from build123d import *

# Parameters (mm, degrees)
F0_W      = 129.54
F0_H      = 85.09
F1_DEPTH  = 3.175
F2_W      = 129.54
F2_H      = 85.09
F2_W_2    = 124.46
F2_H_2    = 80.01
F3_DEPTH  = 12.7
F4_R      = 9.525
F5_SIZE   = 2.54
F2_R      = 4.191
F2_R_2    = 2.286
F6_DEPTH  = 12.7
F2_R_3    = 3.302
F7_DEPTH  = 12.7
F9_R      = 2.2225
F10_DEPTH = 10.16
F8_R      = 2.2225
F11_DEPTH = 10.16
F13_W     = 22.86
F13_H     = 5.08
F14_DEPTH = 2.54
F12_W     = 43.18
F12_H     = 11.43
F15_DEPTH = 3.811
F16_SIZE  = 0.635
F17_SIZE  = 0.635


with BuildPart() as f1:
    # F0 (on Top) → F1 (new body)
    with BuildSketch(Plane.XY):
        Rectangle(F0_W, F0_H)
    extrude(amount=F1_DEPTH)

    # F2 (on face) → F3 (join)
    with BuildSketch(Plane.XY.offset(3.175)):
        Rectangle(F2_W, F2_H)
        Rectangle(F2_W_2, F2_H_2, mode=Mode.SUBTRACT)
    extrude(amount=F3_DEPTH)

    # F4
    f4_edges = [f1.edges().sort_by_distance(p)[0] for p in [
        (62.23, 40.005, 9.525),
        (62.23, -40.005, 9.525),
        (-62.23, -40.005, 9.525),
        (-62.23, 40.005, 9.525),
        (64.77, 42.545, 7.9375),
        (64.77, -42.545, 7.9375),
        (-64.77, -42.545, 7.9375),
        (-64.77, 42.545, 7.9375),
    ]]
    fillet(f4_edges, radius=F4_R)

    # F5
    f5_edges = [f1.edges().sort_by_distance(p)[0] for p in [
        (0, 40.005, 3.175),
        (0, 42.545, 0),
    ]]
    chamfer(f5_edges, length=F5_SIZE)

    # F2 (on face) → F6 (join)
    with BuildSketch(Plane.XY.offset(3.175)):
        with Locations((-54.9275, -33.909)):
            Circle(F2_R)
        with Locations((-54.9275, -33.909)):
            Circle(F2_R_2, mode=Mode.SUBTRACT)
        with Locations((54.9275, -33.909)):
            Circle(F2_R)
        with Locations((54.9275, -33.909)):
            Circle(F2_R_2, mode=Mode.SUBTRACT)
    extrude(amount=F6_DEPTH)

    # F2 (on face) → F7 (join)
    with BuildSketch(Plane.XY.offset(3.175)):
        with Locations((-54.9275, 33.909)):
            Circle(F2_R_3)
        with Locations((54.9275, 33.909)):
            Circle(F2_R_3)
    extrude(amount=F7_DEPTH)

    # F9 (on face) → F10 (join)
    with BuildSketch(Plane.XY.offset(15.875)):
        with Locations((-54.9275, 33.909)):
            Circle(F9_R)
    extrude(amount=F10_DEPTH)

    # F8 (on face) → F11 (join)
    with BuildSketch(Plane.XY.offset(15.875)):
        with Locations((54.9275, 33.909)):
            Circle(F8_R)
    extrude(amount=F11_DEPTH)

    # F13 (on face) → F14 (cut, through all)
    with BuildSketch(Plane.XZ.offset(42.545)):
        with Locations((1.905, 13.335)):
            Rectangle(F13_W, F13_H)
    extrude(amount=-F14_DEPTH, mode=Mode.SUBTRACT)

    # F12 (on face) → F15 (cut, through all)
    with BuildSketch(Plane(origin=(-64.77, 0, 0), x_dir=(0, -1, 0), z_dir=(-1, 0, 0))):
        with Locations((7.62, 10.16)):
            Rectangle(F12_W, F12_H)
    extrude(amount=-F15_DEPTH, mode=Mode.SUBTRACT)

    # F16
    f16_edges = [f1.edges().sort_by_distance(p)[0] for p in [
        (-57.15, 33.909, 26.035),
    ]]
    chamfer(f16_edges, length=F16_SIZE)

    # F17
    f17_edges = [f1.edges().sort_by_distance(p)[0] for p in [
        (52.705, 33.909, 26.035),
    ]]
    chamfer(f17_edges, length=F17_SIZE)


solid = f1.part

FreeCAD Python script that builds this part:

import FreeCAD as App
import Part
import Sketcher
Q = App.Units.Quantity


def edges_at(feature, points):
    """Names of the edges that pass closest to the given points."""
    edges = feature.Shape.Edges
    near = lambda p: min(range(len(edges)), key=lambda i: edges[i].distToShape(Part.Vertex(*p))[0])
    return sorted({f"Edge{near(p) + 1}" for p in points})


def add_polygon(sketch, points):
    """Adds a closed chain of lines whose ends are joined by coincident constraints."""
    first, n = sketch.GeometryCount, len(points)
    for a, b in zip(points, points[1:] + points[:1]):
        sketch.addGeometry(Part.LineSegment(App.Vector(*a, 0), App.Vector(*b, 0)), False)
    for i in range(n):
        sketch.addConstraint(Sketcher.Constraint("Coincident", first + i, 2, first + (i + 1) % n, 1))

doc = App.newDocument("Part")
body = doc.addObject("PartDesign::Body", "Body")

sketch1 = body.newObject("Sketcher::SketchObject", "Sketch")
sketch1.AttachmentSupport = (doc.getObject("XY_Plane"), [""])
sketch1.MapMode = "FlatFace"
add_polygon(sketch1, [(-64.77, 42.545), (-64.77, -42.545), (64.77, -42.545), (64.77, 42.545)])
sketch1.addConstraint([
    Sketcher.Constraint("Vertical", 0),
    Sketcher.Constraint("Horizontal", 1),
    Sketcher.Constraint("Vertical", 2),
    Sketcher.Constraint("Horizontal", 3),
    Sketcher.Constraint("Symmetric", 0, 2, 2, 2, -1, 1),
    Sketcher.Constraint("DistanceX", 1, 1, 1, 2, Q("5.1 in")),
    Sketcher.Constraint("DistanceY", 0, 2, 0, 1, Q("3.35 in")),
])
pad1 = body.newObject("PartDesign::Pad", "Pad")
pad1.Profile = sketch1
pad1.Length = Q("0.125 in")

sketch2 = body.newObject("Sketcher::SketchObject", "Sketch001")
sketch2.AttachmentSupport = (doc.getObject("XY_Plane"), [""])
sketch2.MapMode = "FlatFace"
sketch2.AttachmentOffset = App.Placement(App.Vector(0, 0, 0.125 * 25.4), App.Rotation())
add_polygon(sketch2, [(-64.77, 42.545), (-64.77, -42.545), (64.77, -42.545), (64.77, 42.545)])
add_polygon(sketch2, [(62.23, -40.005), (-62.23, -40.005), (-62.23, 40.005), (62.23, 40.005)])
sketch2.addConstraint([
    Sketcher.Constraint("Vertical", 0),
    Sketcher.Constraint("Horizontal", 1),
    Sketcher.Constraint("Vertical", 2),
    Sketcher.Constraint("Horizontal", 3),
    Sketcher.Constraint("Horizontal", 4),
    Sketcher.Constraint("Vertical", 5),
    Sketcher.Constraint("Horizontal", 6),
    Sketcher.Constraint("Vertical", 7),
    Sketcher.Constraint("Symmetric", 0, 2, 2, 2, -1, 1),
    Sketcher.Constraint("Symmetric", 4, 2, 6, 2, -1, 1),
    Sketcher.Constraint("DistanceX", 1, 1, 1, 2, Q("5.1 in")),
    Sketcher.Constraint("DistanceX", 4, 2, 4, 1, Q("4.9 in")),
    Sketcher.Constraint("DistanceY", 0, 2, 0, 1, Q("3.35 in")),
    Sketcher.Constraint("DistanceY", 5, 1, 5, 2, Q("3.15 in")),
])
pad2 = body.newObject("PartDesign::Pad", "Pad001")
pad2.Profile = sketch2
pad2.Length = Q("0.5 in")
doc.recompute()

fillet = body.newObject("PartDesign::Fillet", "Fillet")
fillet.Base = (pad2, edges_at(pad2, [
    (62.23, 40.005, 9.525),
    (62.23, -40.005, 9.525),
    (-62.23, -40.005, 9.525),
    (-62.23, 40.005, 9.525),
    (64.77, 42.545, 7.938),
    (64.77, -42.545, 7.938),
    (-64.77, -42.545, 7.938),
    (-64.77, 42.545, 7.938),
]))
fillet.Radius = Q("0.375 in")
doc.recompute()

chamfer = body.newObject("PartDesign::Chamfer", "Chamfer")
chamfer.Base = (fillet, edges_at(fillet, [(0, 40.005, 3.175), (0, 42.545, 0)]))
chamfer.Size = Q("0.1 in")

sketch3 = body.newObject("Sketcher::SketchObject", "Sketch002")
sketch3.AttachmentSupport = (doc.getObject("XY_Plane"), [""])
sketch3.MapMode = "FlatFace"
sketch3.AttachmentOffset = App.Placement(App.Vector(0, 0, 0.125 * 25.4), App.Rotation())
sketch3.addGeometry([
    Part.Circle(App.Vector(-54.9275, -33.909, 0), App.Vector(0, 0, 1), 4.191),
    Part.Circle(App.Vector(-54.9275, -33.909, 0), App.Vector(0, 0, 1), 2.286),
    Part.Circle(App.Vector(54.9275, -33.909, 0), App.Vector(0, 0, 1), 4.191),
    Part.Circle(App.Vector(54.9275, -33.909, 0), App.Vector(0, 0, 1), 2.286),
], False)
sketch3.addConstraint([
    Sketcher.Constraint("Coincident", 1, 3, 0, 3),
    Sketcher.Constraint("Coincident", 3, 3, 2, 3),
    Sketcher.Constraint("Equal", 0, 2),
    Sketcher.Constraint("Equal", 1, 3),
    Sketcher.Constraint("Symmetric", 0, 3, 2, 3, -2),
    Sketcher.Constraint("Diameter", 0, Q("0.33 in")),
    Sketcher.Constraint("Diameter", 1, Q("0.18 in")),
    Sketcher.Constraint("DistanceY", 0, 3, -1, 1, Q("1.335 in")),
    Sketcher.Constraint("DistanceX", 0, 3, 2, 3, Q("4.325 in")),
])
pad3 = body.newObject("PartDesign::Pad", "Pad002")
pad3.Profile = sketch3
pad3.Length = Q("0.5 in")

sketch4 = body.newObject("Sketcher::SketchObject", "Sketch003")
sketch4.AttachmentSupport = (doc.getObject("XY_Plane"), [""])
sketch4.MapMode = "FlatFace"
sketch4.AttachmentOffset = App.Placement(App.Vector(0, 0, 0.125 * 25.4), App.Rotation())
sketch4.addGeometry([
    Part.Circle(App.Vector(-54.9275, 33.909, 0), App.Vector(0, 0, 1), 3.302),
    Part.Circle(App.Vector(54.9275, 33.909, 0), App.Vector(0, 0, 1), 3.302),
], False)
sketch4.addConstraint([
    Sketcher.Constraint("Equal", 0, 1),
    Sketcher.Constraint("Symmetric", 0, 3, 1, 3, -2),
    Sketcher.Constraint("Diameter", 0, Q("0.26 in")),
    Sketcher.Constraint("DistanceY", -1, 1, 0, 3, Q("1.335 in")),
    Sketcher.Constraint("DistanceX", 0, 3, 1, 3, Q("4.325 in")),
])
pad4 = body.newObject("PartDesign::Pad", "Pad003")
pad4.Profile = sketch4
pad4.Length = Q("0.5 in")

sketch5 = body.newObject("Sketcher::SketchObject", "Sketch004")
sketch5.AttachmentSupport = (doc.getObject("XY_Plane"), [""])
sketch5.MapMode = "FlatFace"
sketch5.AttachmentOffset = App.Placement(App.Vector(0, 0, 0.625 * 25.4), App.Rotation())
sketch5.addGeometry(Part.Circle(App.Vector(-54.9275, 33.909, 0), App.Vector(0, 0, 1), 2.2225), False)
sketch5.addConstraint([
    Sketcher.Constraint("Diameter", 0, Q("0.175 in")),
    Sketcher.Constraint("DistanceY", -1, 1, 0, 3, Q("1.335 in")),
    Sketcher.Constraint("DistanceX", 0, 3, -1, 1, Q("2.1625 in")),
])
pad5 = body.newObject("PartDesign::Pad", "Pad004")
pad5.Profile = sketch5
pad5.Length = Q("0.4 in")

sketch6 = body.newObject("Sketcher::SketchObject", "Sketch005")
sketch6.AttachmentSupport = (doc.getObject("XY_Plane"), [""])
sketch6.MapMode = "FlatFace"
sketch6.AttachmentOffset = App.Placement(App.Vector(0, 0, 0.625 * 25.4), App.Rotation())
sketch6.addGeometry(Part.Circle(App.Vector(54.9275, 33.909, 0), App.Vector(0, 0, 1), 2.2225), False)
sketch6.addConstraint([
    Sketcher.Constraint("Diameter", 0, Q("0.175 in")),
    Sketcher.Constraint("DistanceY", -1, 1, 0, 3, Q("1.335 in")),
    Sketcher.Constraint("DistanceX", -1, 1, 0, 3, Q("2.1625 in")),
])
pad6 = body.newObject("PartDesign::Pad", "Pad005")
pad6.Profile = sketch6
pad6.Length = Q("0.4 in")

sketch7 = body.newObject("Sketcher::SketchObject", "Sketch006")
sketch7.AttachmentSupport = (doc.getObject("XZ_Plane"), [""])
sketch7.MapMode = "FlatFace"
sketch7.AttachmentOffset = App.Placement(App.Vector(0, 0, 1.675 * 25.4), App.Rotation())
add_polygon(sketch7, [(-9.525, 15.875), (-9.525, 10.795), (13.335, 10.795), (13.335, 15.875)])
sketch7.addConstraint([
    Sketcher.Constraint("Vertical", 0),
    Sketcher.Constraint("Horizontal", 1),
    Sketcher.Constraint("Vertical", 2),
    Sketcher.Constraint("Horizontal", 3),
    Sketcher.Constraint("DistanceX", 1, 1, 1, 2, Q("0.9 in")),
    Sketcher.Constraint("DistanceY", 0, 2, 0, 1, Q("0.2 in")),
    Sketcher.Constraint("DistanceX", 0, 2, -1, 1, Q("0.375 in")),
    Sketcher.Constraint("DistanceY", -1, 1, 0, 2, Q("0.425 in")),
])
pocket1 = body.newObject("PartDesign::Pocket", "Pocket")
pocket1.Profile = sketch7
pocket1.Length = Q("0.1 in")

sketch8 = body.newObject("Sketcher::SketchObject", "Sketch007")
sketch8.AttachmentSupport = (doc.getObject("YZ_Plane"), [""])
sketch8.MapMode = "FlatFace"
sketch8.AttachmentOffset = App.Placement(App.Vector(0, 0, -2.55 * 25.4), App.Rotation())
add_polygon(sketch8, [(13.97, 15.875), (13.97, 4.445), (-29.21, 4.445), (-29.21, 15.875)])
sketch8.addConstraint([
    Sketcher.Constraint("Vertical", 0),
    Sketcher.Constraint("Horizontal", 1),
    Sketcher.Constraint("Vertical", 2),
    Sketcher.Constraint("Horizontal", 3),
    Sketcher.Constraint("DistanceX", 1, 2, 1, 1, Q("1.7 in")),
    Sketcher.Constraint("DistanceY", 0, 2, 0, 1, Q("0.45 in")),
    Sketcher.Constraint("DistanceX", -1, 1, 0, 2, Q("0.55 in")),
    Sketcher.Constraint("DistanceY", -1, 1, 0, 2, Q("0.175 in")),
])
pocket2 = body.newObject("PartDesign::Pocket", "Pocket001")
pocket2.Profile = sketch8
pocket2.Length = 3.811
pocket2.Reversed = True
doc.recompute()

chamfer2 = body.newObject("PartDesign::Chamfer", "Chamfer001")
chamfer2.Base = (pocket2, edges_at(pocket2, [(-57.15, 33.909, 26.035)]))
chamfer2.Size = Q("0.025 in")
doc.recompute()

chamfer3 = body.newObject("PartDesign::Chamfer", "Chamfer002")
chamfer3.Base = (chamfer2, edges_at(chamfer2, [(52.705, 33.909, 26.035)]))
chamfer3.Size = Q("0.025 in")

doc.recompute()
